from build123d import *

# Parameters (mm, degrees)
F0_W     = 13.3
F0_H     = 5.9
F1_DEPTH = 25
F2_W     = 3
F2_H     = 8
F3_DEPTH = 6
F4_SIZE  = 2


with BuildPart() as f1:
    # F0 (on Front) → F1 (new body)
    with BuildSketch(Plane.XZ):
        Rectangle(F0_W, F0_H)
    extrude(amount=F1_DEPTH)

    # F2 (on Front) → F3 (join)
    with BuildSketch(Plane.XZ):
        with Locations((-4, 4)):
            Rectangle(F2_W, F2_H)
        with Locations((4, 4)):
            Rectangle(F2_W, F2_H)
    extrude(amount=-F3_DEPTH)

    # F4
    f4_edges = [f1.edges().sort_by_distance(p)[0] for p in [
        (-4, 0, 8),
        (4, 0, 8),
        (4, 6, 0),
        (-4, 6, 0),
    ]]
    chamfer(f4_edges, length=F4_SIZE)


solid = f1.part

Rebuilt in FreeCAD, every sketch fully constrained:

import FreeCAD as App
import Part
import Sketcher
from FreeCAD import Vector
Q = App.Units.Quantity


def edges_at(feature, points):
    """Names of the edges that pass closest to the given points."""
    edges = feature.Shape.Edges
    near = lambda p: min(range(len(edges)), key=lambda i: edges[i].distToShape(Part.Vertex(*p))[0])
    return sorted({f"Edge{near(p) + 1}" for p in points})


def add_polygon(sketch, points):
    """Adds a closed chain of lines whose ends are joined by coincident constraints."""
    first, n = sketch.GeometryCount, len(points)
    for a, b in zip(points, points[1:] + points[:1]):
        sketch.addGeometry(Part.LineSegment(App.Vector(*a, 0), App.Vector(*b, 0)), False)
    for i in range(n):
        sketch.addConstraint(Sketcher.Constraint("Coincident", first + i, 2, first + (i + 1) % n, 1))

doc = App.newDocument("Part")
params = doc.addObject("Spreadsheet::Sheet", "Params")
for row, (alias, value) in enumerate([
    ("sketch1_width", "13.3 mm"),
    ("sketch1_height", "5.9 mm"),
    ("pad1_length", "25 mm"),
    ("sketch2_width", "3 mm"),
    ("sketch2_height", "8 mm"),
    ("pad2_length", "6 mm"),
    ("chamfer_size", "2 mm"),
], start=1):
    params.set(f"A{row}", alias)
    params.set(f"B{row}", "=" + value)
    params.setAlias(f"B{row}", alias)

body = doc.addObject("PartDesign::Body", "Body")

# Sketch on XZ plane
sketch1 = body.newObject("Sketcher::SketchObject", "Sketch")
sketch1.AttachmentSupport = (doc.getObject("XZ_Plane"), [""])
sketch1.MapMode = "FlatFace"
add_polygon(sketch1, [(-6.65, 2.95), (-6.65, -2.95), (6.65, -2.95), (6.65, 2.95)])  # lines 0-3
sketch1.addConstraint(Sketcher.Constraint("Vertical", 0))
sketch1.addConstraint(Sketcher.Constraint("Horizontal", 1))
sketch1.addConstraint(Sketcher.Constraint("Vertical", 2))
sketch1.addConstraint(Sketcher.Constraint("Horizontal", 3))
sketch1.addConstraint(Sketcher.Constraint("Symmetric", 0, 2, 2, 2, -1, 1))
sketch1.addConstraint(Sketcher.Constraint("DistanceX", 1, 1, 1, 2, Q("13.3 mm")))
sketch1.addConstraint(Sketcher.Constraint("DistanceY", 0, 2, 0, 1, Q("5.9 mm")))
sketch1.setExpression("Constraints[9]", "Params.sketch1_width")
sketch1.setExpression("Constraints[10]", "Params.sketch1_height")
pad1 = body.newObject("PartDesign::Pad", "Pad")
pad1.Profile = sketch1
pad1.setExpression("Length", "Params.pad1_length")

# Sketch on XZ plane
sketch2 = body.newObject("Sketcher::SketchObject", "Sketch001")
sketch2.AttachmentSupport = (doc.getObject("XZ_Plane"), [""])
sketch2.MapMode = "FlatFace"
add_polygon(sketch2, [(-5.5, 8), (-5.5, 0), (-2.5, 0), (-2.5, 8)])  # lines 0-3
add_polygon(sketch2, [(2.5, 8), (2.5, 0), (5.5, 0), (5.5, 8)])  # lines 4-7
sketch2.addConstraint(Sketcher.Constraint("Vertical", 0))
sketch2.addConstraint(Sketcher.Constraint("Horizontal", 1))
sketch2.addConstraint(Sketcher.Constraint("Vertical", 2))
sketch2.addConstraint(Sketcher.Constraint("Horizontal", 3))
sketch2.addConstraint(Sketcher.Constraint("Vertical", 4))
sketch2.addConstraint(Sketcher.Constraint("Horizontal", 5))
sketch2.addConstraint(Sketcher.Constraint("Vertical", 6))
sketch2.addConstraint(Sketcher.Constraint("Horizontal", 7))
sketch2.addConstraint(Sketcher.Constraint("Symmetric", 1, 2, 4, 2, -1, 1))
sketch2.addConstraint(Sketcher.Constraint("Symmetric", 0, 2, 5, 2, -2))
sketch2.addConstraint(Sketcher.Constraint("Horizontal", 3, 2, 6, 2))
sketch2.addConstraint(Sketcher.Constraint("DistanceX", 1, 1, 1, 2, Q("3 mm")))
sketch2.addConstraint(Sketcher.Constraint("DistanceY", 0, 2, 0, 1, Q("8 mm")))
sketch2.addConstraint(Sketcher.Constraint("DistanceX", 1, 2, 4, 2, Q("5 mm")))
sketch2.setExpression("Constraints[19]", "Params.sketch2_width")
sketch2.setExpression("Constraints[20]", "Params.sketch2_height")
pad2 = body.newObject("PartDesign::Pad", "Pad001")
pad2.Profile = sketch2
pad2.setExpression("Length", "Params.pad2_length")
pad2.Reversed = True
doc.recompute()

chamfer = body.newObject("PartDesign::Chamfer", "Chamfer")
chamfer.Base = (pad2, edges_at(pad2, [
    (-4, 0, 8),
    (4, 0, 8),
    (4, 6, 0),
    (-4, 6, 0),
]))
chamfer.setExpression("Size", "Params.chamfer_size")

doc.recompute()
